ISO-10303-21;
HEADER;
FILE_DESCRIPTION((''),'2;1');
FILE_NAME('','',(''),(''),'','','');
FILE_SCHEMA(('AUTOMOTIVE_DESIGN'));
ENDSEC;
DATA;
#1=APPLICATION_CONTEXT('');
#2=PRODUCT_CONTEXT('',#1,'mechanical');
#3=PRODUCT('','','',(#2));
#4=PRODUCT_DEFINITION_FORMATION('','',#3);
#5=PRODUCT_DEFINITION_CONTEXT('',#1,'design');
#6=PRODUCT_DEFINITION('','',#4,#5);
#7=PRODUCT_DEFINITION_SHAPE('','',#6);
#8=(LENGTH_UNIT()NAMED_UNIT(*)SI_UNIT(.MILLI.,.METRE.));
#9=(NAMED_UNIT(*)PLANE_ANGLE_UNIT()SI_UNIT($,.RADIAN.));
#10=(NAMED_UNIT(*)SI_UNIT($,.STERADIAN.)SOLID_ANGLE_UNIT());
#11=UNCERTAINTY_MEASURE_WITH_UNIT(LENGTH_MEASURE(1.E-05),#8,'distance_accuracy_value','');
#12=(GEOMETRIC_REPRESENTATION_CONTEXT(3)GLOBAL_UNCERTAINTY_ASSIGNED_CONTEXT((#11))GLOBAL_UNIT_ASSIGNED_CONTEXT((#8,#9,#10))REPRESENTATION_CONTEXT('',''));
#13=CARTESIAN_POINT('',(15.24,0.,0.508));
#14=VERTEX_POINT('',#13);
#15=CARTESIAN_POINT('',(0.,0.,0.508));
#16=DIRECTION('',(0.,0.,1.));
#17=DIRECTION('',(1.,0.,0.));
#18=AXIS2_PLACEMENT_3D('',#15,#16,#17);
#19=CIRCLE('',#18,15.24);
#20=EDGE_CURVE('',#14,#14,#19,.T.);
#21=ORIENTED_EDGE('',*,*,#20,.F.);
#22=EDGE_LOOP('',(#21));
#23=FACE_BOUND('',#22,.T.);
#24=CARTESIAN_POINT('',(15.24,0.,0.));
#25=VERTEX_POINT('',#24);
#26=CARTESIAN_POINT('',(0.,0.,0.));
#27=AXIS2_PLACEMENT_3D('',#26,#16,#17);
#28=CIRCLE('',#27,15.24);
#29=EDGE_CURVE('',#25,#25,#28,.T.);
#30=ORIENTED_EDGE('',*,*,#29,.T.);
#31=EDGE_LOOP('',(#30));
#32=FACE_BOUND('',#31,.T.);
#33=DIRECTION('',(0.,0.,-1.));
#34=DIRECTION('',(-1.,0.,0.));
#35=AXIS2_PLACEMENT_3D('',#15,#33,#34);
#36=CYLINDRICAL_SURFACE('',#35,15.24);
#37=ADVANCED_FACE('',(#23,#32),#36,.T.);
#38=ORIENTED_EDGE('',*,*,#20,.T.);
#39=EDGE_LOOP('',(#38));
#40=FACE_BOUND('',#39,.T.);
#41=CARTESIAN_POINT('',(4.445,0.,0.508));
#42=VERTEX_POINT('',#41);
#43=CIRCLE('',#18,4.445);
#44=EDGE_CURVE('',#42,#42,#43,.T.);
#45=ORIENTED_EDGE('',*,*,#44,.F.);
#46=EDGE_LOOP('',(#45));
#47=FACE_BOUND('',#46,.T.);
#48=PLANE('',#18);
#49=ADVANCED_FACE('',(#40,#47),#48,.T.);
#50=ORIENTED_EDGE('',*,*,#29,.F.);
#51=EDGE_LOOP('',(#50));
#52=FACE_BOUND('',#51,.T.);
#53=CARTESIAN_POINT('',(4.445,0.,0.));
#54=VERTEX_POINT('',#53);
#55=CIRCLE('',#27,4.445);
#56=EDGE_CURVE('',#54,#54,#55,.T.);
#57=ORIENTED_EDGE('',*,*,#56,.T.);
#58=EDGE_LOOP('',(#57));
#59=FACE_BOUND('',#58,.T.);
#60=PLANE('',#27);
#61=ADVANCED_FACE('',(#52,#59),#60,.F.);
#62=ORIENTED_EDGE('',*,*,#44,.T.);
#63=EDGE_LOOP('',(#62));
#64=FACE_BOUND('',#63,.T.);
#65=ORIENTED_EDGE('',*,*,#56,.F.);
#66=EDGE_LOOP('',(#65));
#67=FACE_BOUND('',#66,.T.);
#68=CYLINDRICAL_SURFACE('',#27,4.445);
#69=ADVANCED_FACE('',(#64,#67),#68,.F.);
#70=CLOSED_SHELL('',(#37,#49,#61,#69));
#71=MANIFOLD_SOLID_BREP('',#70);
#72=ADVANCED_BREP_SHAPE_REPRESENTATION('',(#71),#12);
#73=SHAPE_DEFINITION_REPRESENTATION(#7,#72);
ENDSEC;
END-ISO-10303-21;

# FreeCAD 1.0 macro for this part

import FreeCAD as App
import Part
import Sketcher
Q = App.Units.Quantity

doc = App.newDocument("Part")
params = doc.addObject("Spreadsheet::Sheet", "Params")
for row, (alias, value) in enumerate([
    ("sketch1_diameter", "1.2 in"),
    ("pad1_length", "0.02 in"),
    ("sketch2_diameter", "0.35 in"),
], start=1):
    params.set(f"A{row}", alias)
    params.set(f"B{row}", "=" + value)
    params.setAlias(f"B{row}", alias)

body = doc.addObject("PartDesign::Body", "Body")

# Sketch on XY plane
sketch1 = body.newObject("Sketcher::SketchObject", "Sketch")
sketch1.AttachmentSupport = (doc.getObject("XY_Plane"), [""])
sketch1.MapMode = "FlatFace"
sketch1.addGeometry(Part.Circle(App.Vector(0, 0, 0), App.Vector(0, 0, 1), 15), False)
sketch1.addConstraint(Sketcher.Constraint("Coincident", 0, 3, -1, 1))
sketch1.addConstraint(Sketcher.Constraint("Diameter", 0, Q("1.2 in")))
sketch1.setExpression("Constraints[1]", "Params.sketch1_diameter")
pad1 = body.newObject("PartDesign::Pad", "Pad")
pad1.Profile = sketch1
pad1.setExpression("Length", "Params.pad1_length")

# Sketch on XY plane
sketch2 = body.newObject("Sketcher::SketchObject", "Sketch001")
sketch2.AttachmentSupport = (doc.getObject("XY_Plane"), [""])
sketch2.MapMode = "FlatFace"
sketch2.AttachmentOffset = App.Placement(App.Vector(0, 0, 0.02 * 25.4), App.Rotation())
sketch2.addGeometry(Part.Circle(App.Vector(0, 0, 0), App.Vector(0, 0, 1), 4.4), False)
sketch2.addConstraint(Sketcher.Constraint("Coincident", 0, 3, -1, 1))
sketch2.addConstraint(Sketcher.Constraint("Diameter", 0, Q("0.35 in")))
sketch2.setExpression("Constraints[1]", "Params.sketch2_diameter")
pocket1 = body.newObject("PartDesign::Pocket", "Pocket")
pocket1.Profile = sketch2
pocket1.Type = "ThroughAll"

doc.recompute()
